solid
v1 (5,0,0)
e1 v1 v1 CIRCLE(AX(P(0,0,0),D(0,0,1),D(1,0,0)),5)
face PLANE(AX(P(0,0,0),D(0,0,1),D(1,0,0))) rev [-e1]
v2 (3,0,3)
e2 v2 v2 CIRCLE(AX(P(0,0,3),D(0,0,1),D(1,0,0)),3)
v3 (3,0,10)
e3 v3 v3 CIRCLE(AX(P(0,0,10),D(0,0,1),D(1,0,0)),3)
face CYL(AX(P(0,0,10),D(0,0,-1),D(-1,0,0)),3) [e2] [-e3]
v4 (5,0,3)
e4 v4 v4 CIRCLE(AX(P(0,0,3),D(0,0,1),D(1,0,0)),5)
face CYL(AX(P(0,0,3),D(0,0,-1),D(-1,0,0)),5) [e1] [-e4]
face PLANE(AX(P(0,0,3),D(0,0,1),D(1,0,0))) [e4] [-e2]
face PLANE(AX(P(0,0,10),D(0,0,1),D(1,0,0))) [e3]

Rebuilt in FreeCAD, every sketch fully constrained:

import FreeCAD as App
import Part
import Sketcher

V = App.Vector

doc = App.newDocument("Part")
params = doc.addObject("Spreadsheet::Sheet", "Params")
for row, (alias, value) in enumerate([
    ("sketch1_diameter", "10 mm"),
    ("pad1_length", "3 mm"),
    ("sketch2_diameter", "6 mm"),
    ("pad2_length", "7 mm"),
], start=1):
    params.set(f"A{row}", alias)
    params.set(f"B{row}", "=" + value)
    params.setAlias(f"B{row}", alias)

body = doc.addObject("PartDesign::Body", "Body")

sketch1 = body.newObject("Sketcher::SketchObject", "Sketch")
sketch1.AttachmentSupport = (doc.getObject("XY_Plane"), [""])
sketch1.MapMode = "FlatFace"
sketch1.addGeometry(Part.Circle(V(0, 0, 0), V(0, 0, 1), 5), False)
sketch1.addConstraint(Sketcher.Constraint("Coincident", 0, 3, -1, 1))
sketch1.addConstraint(Sketcher.Constraint("Diameter", 0, 10.0))
sketch1.setExpression("Constraints[1]", "Params.sketch1_diameter")
pad1 = body.newObject("PartDesign::Pad", "Pad")
pad1.Profile = sketch1
pad1.setExpression("Length", "Params.pad1_length")

sketch2 = body.newObject("Sketcher::SketchObject", "Sketch001")
sketch2.AttachmentSupport = (doc.getObject("XY_Plane"), [""])
sketch2.MapMode = "FlatFace"
sketch2.AttachmentOffset = App.Placement(V(0, 0, 3), App.Rotation())
sketch2.addGeometry(Part.Circle(V(0, 0, 0), V(0, 0, 1), 3), False)
sketch2.addConstraint(Sketcher.Constraint("Coincident", 0, 3, -1, 1))
sketch2.addConstraint(Sketcher.Constraint("Diameter", 0, 6.0))
sketch2.setExpression("Constraints[1]", "Params.sketch2_diameter")
pad2 = body.newObject("PartDesign::Pad", "Pad001")
pad2.Profile = sketch2
pad2.setExpression("Length", "Params.pad2_length")

doc.recompute()
